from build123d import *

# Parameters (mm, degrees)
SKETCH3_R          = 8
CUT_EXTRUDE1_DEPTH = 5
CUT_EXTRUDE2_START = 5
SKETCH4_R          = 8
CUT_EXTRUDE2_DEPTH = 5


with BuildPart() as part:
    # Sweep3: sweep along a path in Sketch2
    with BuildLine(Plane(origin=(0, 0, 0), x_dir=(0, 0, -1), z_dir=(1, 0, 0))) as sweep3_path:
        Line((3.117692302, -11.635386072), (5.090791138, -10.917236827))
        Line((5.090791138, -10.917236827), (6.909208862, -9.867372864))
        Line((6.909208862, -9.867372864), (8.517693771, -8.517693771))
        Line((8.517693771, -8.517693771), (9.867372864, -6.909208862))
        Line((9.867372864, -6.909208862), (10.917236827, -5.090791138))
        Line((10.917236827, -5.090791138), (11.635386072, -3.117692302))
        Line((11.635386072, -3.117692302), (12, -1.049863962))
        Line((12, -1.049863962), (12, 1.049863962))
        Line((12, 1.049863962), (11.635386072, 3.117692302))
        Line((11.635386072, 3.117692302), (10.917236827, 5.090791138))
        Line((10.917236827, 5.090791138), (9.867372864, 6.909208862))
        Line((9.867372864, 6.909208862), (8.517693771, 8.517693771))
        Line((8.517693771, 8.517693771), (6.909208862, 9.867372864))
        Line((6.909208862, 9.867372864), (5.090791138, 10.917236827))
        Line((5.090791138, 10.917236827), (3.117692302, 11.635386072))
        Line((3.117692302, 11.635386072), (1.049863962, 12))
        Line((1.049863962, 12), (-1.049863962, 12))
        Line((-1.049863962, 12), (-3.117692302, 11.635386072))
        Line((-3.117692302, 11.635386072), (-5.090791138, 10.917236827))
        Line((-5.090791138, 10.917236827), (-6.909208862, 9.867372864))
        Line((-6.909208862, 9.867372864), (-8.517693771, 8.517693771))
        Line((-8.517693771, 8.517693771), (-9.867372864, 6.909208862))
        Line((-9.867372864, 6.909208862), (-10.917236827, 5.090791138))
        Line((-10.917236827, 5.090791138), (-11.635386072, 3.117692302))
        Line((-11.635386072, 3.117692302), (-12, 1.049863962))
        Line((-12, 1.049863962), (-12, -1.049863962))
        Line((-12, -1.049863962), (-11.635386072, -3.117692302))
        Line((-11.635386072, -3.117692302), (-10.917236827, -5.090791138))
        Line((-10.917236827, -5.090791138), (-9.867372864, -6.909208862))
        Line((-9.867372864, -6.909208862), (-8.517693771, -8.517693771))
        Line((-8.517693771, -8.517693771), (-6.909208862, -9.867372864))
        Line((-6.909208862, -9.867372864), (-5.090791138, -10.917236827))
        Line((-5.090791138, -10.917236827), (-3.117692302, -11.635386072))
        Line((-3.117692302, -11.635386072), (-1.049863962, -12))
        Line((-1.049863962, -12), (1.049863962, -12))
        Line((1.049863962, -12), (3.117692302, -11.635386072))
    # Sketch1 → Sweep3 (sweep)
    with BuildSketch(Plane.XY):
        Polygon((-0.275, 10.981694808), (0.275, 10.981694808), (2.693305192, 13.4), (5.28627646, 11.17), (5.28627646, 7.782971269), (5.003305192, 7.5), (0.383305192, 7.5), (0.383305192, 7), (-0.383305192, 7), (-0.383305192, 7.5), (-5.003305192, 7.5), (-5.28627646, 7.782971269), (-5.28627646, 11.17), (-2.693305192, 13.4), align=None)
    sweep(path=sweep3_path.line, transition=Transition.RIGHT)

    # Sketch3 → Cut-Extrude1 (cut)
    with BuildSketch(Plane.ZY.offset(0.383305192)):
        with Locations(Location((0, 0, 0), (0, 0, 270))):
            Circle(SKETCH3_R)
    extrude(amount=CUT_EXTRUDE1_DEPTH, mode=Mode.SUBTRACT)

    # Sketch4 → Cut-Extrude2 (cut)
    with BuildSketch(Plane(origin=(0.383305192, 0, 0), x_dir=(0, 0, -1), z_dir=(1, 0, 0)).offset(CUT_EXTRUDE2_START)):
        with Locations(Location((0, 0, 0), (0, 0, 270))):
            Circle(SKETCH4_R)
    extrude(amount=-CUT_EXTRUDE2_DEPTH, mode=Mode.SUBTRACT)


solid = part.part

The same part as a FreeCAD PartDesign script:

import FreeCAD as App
import Part
import Sketcher

V = App.Vector
Q = App.Units.Quantity

doc = App.newDocument("Part")
body = doc.addObject("PartDesign::Body", "Body")

sketch1 = body.newObject("Sketcher::SketchObject", "Sketch")
sketch1.AttachmentSupport = (doc.getObject("XY_Plane"), [""])
sketch1.MapMode = "FlatFace"
sketch1.addGeometry([
    Part.LineSegment(V(0.28, 10.98, 0), V(-0.28, 10.98, 0)),
    Part.LineSegment(V(-0.28, 10.98, 0), V(-2.69, 13.4, 0)),
    Part.LineSegment(V(-2.69, 13.4, 0), V(-5.29, 11.17, 0)),
    Part.LineSegment(V(-5.29, 11.17, 0), V(-5.29, 7.78, 0)),
    Part.LineSegment(V(-5.29, 7.78, 0), V(-5, 7.5, 0)),
    Part.LineSegment(V(-5, 7.5, 0), V(-0.38, 7.5, 0)),
    Part.LineSegment(V(-0.38, 7.5, 0), V(-0.38, 7, 0)),
    Part.LineSegment(V(-0.38, 7, 0), V(0.38, 7, 0)),
    Part.LineSegment(V(0.38, 7, 0), V(0.38, 7.5, 0)),
    Part.LineSegment(V(0.38, 7.5, 0), V(5, 7.5, 0)),
    Part.LineSegment(V(5, 7.5, 0), V(5.29, 7.78, 0)),
    Part.LineSegment(V(5.29, 7.78, 0), V(5.29, 11.17, 0)),
    Part.LineSegment(V(5.29, 11.17, 0), V(2.69, 13.4, 0)),
    Part.LineSegment(V(2.69, 13.4, 0), V(0.28, 10.98, 0)),
], False)
sketch1.addConstraint([
    Sketcher.Constraint("Coincident", 0, 2, 1, 1),
    Sketcher.Constraint("Coincident", 1, 2, 2, 1),
    Sketcher.Constraint("Coincident", 2, 2, 3, 1),
    Sketcher.Constraint("Coincident", 3, 2, 4, 1),
    Sketcher.Constraint("Coincident", 4, 2, 5, 1),
    Sketcher.Constraint("Coincident", 5, 2, 6, 1),
    Sketcher.Constraint("Coincident", 6, 2, 7, 1),
    Sketcher.Constraint("Coincident", 7, 2, 8, 1),
    Sketcher.Constraint("Coincident", 8, 2, 9, 1),
    Sketcher.Constraint("Coincident", 9, 2, 10, 1),
    Sketcher.Constraint("Coincident", 10, 2, 11, 1),
    Sketcher.Constraint("Coincident", 11, 2, 12, 1),
    Sketcher.Constraint("Coincident", 12, 2, 13, 1),
    Sketcher.Constraint("Coincident", 13, 2, 0, 1),
    Sketcher.Constraint("Horizontal", 0),
    Sketcher.Constraint("Vertical", 3),
    Sketcher.Constraint("Horizontal", 5),
    Sketcher.Constraint("Vertical", 6),
    Sketcher.Constraint("Horizontal", 7),
    Sketcher.Constraint("Vertical", 8),
    Sketcher.Constraint("Horizontal", 9),
    Sketcher.Constraint("Vertical", 11),
    Sketcher.Constraint("Symmetric", 5, 2, 8, 2, -2),
    Sketcher.Constraint("Symmetric", 3, 2, 10, 2, -2),
    Sketcher.Constraint("Symmetric", 1, 2, 12, 2, -2),
    Sketcher.Constraint("Parallel", 1, 4),
    Sketcher.Constraint("Perpendicular", 4, 10),
    Sketcher.Constraint("Parallel", 10, 13),
    Sketcher.Constraint("Horizontal", 2, 2, 11, 2),
    Sketcher.Constraint("Equal", 5, 9),
    Sketcher.Constraint("Equal", 1, 2),
    Sketcher.Constraint("DistanceY", 6, 2, 6, 1, 0.5),
    Sketcher.Constraint("DistanceY", -1, 1, 6, 2, 7.0),
    Sketcher.Constraint("DistanceX", 0, 2, 0, 1, 0.55),
    Sketcher.Constraint("DistanceX", 5, 1, 5, 2, 4.62),
    Sketcher.Constraint("DistanceY", -1, 1, 1, 2, 13.4),
    Sketcher.Constraint("Distance", 1, 3.42),
    Sketcher.Constraint("DistanceY", -1, 1, 2, 2, 11.17),
    Sketcher.Constraint("DistanceX", 4, 2, 1, 2, 2.31),
])

sketch2 = body.newObject("Sketcher::SketchObject", "Sketch001")
sketch2.AttachmentSupport = (doc.getObject("YZ_Plane"), [""])
sketch2.MapMode = "FlatFace"
sketch2.addGeometry([
    Part.LineSegment(V(-11.6, -3.1, 0), V(-10.9, -5.1, 0)),
    Part.LineSegment(V(-10.9, -5.1, 0), V(-9.9, -6.9, 0)),
    Part.LineSegment(V(-9.9, -6.9, 0), V(-8.5, -8.5, 0)),
    Part.LineSegment(V(-8.5, -8.5, 0), V(-6.9, -9.9, 0)),
    Part.LineSegment(V(-6.9, -9.9, 0), V(-5.1, -10.9, 0)),
    Part.LineSegment(V(-5.1, -10.9, 0), V(-3.1, -11.6, 0)),
    Part.LineSegment(V(-3.1, -11.6, 0), V(-1, -12, 0)),
    Part.LineSegment(V(-1, -12, 0), V(1, -12, 0)),
    Part.LineSegment(V(1, -12, 0), V(3.1, -11.6, 0)),
    Part.LineSegment(V(3.1, -11.6, 0), V(5.1, -10.9, 0)),
    Part.LineSegment(V(5.1, -10.9, 0), V(6.9, -9.9, 0)),
    Part.LineSegment(V(6.9, -9.9, 0), V(8.5, -8.5, 0)),
    Part.LineSegment(V(8.5, -8.5, 0), V(9.9, -6.9, 0)),
    Part.LineSegment(V(9.9, -6.9, 0), V(10.9, -5.1, 0)),
    Part.LineSegment(V(10.9, -5.1, 0), V(11.6, -3.1, 0)),
    Part.LineSegment(V(11.6, -3.1, 0), V(12, -1, 0)),
    Part.LineSegment(V(12, -1, 0), V(12, 1, 0)),
    Part.LineSegment(V(12, 1, 0), V(11.6, 3.1, 0)),
    Part.LineSegment(V(11.6, 3.1, 0), V(10.9, 5.1, 0)),
    Part.LineSegment(V(10.9, 5.1, 0), V(9.9, 6.9, 0)),
    Part.LineSegment(V(9.9, 6.9, 0), V(8.5, 8.5, 0)),
    Part.LineSegment(V(8.5, 8.5, 0), V(6.9, 9.9, 0)),
    Part.LineSegment(V(6.9, 9.9, 0), V(5.1, 10.9, 0)),
    Part.LineSegment(V(5.1, 10.9, 0), V(3.1, 11.6, 0)),
    Part.LineSegment(V(3.1, 11.6, 0), V(1, 12, 0)),
    Part.LineSegment(V(1, 12, 0), V(-1, 12, 0)),
    Part.LineSegment(V(-1, 12, 0), V(-3.1, 11.6, 0)),
    Part.LineSegment(V(-3.1, 11.6, 0), V(-5.1, 10.9, 0)),
    Part.LineSegment(V(-5.1, 10.9, 0), V(-6.9, 9.9, 0)),
    Part.LineSegment(V(-6.9, 9.9, 0), V(-8.5, 8.5, 0)),
    Part.LineSegment(V(-8.5, 8.5, 0), V(-9.9, 6.9, 0)),
    Part.LineSegment(V(-9.9, 6.9, 0), V(-10.9, 5.1, 0)),
    Part.LineSegment(V(-10.9, 5.1, 0), V(-11.6, 3.1, 0)),
    Part.LineSegment(V(-11.6, 3.1, 0), V(-12, 1, 0)),
    Part.LineSegment(V(-12, 1, 0), V(-12, -1, 0)),
    Part.LineSegment(V(-12, -1, 0), V(-11.6, -3.1, 0)),
], False)
sketch2.addConstraint([
    Sketcher.Constraint("Coincident", 0, 2, 1, 1),
    Sketcher.Constraint("Coincident", 1, 2, 2, 1),
    Sketcher.Constraint("Coincident", 2, 2, 3, 1),
    Sketcher.Constraint("Coincident", 3, 2, 4, 1),
    Sketcher.Constraint("Coincident", 4, 2, 5, 1),
    Sketcher.Constraint("Coincident", 5, 2, 6, 1),
    Sketcher.Constraint("Coincident", 6, 2, 7, 1),
    Sketcher.Constraint("Coincident", 7, 2, 8, 1),
    Sketcher.Constraint("Coincident", 8, 2, 9, 1),
    Sketcher.Constraint("Coincident", 9, 2, 10, 1),
    Sketcher.Constraint("Coincident", 10, 2, 11, 1),
    Sketcher.Constraint("Coincident", 11, 2, 12, 1),
    Sketcher.Constraint("Coincident", 12, 2, 13, 1),
    Sketcher.Constraint("Coincident", 13, 2, 14, 1),
    Sketcher.Constraint("Coincident", 14, 2, 15, 1),
    Sketcher.Constraint("Coincident", 15, 2, 16, 1),
    Sketcher.Constraint("Coincident", 16, 2, 17, 1),
    Sketcher.Constraint("Coincident", 17, 2, 18, 1),
    Sketcher.Constraint("Coincident", 18, 2, 19, 1),
    Sketcher.Constraint("Coincident", 19, 2, 20, 1),
    Sketcher.Constraint("Coincident", 20, 2, 21, 1),
    Sketcher.Constraint("Coincident", 21, 2, 22, 1),
    Sketcher.Constraint("Coincident", 22, 2, 23, 1),
    Sketcher.Constraint("Coincident", 23, 2, 24, 1),
    Sketcher.Constraint("Coincident", 24, 2, 25, 1),
    Sketcher.Constraint("Coincident", 25, 2, 26, 1),
    Sketcher.Constraint("Coincident", 26, 2, 27, 1),
    Sketcher.Constraint("Coincident", 27, 2, 28, 1),
    Sketcher.Constraint("Coincident", 28, 2, 29, 1),
    Sketcher.Constraint("Coincident", 29, 2, 30, 1),
    Sketcher.Constraint("Coincident", 30, 2, 31, 1),
    Sketcher.Constraint("Coincident", 31, 2, 32, 1),
    Sketcher.Constraint("Coincident", 32, 2, 33, 1),
    Sketcher.Constraint("Coincident", 33, 2, 34, 1),
    Sketcher.Constraint("Coincident", 34, 2, 35, 1),
    Sketcher.Constraint("Coincident", 35, 2, 0, 1),
    Sketcher.Constraint("Horizontal", 7),
    Sketcher.Constraint("Vertical", 16),
    Sketcher.Constraint("Horizontal", 25),
    Sketcher.Constraint("Vertical", 34),
    Sketcher.Constraint("Symmetric", 0, 2, 18, 2, -1, 1),
    Sketcher.Constraint("Symmetric", 1, 2, 19, 2, -1, 1),
    Sketcher.Constraint("Symmetric", 2, 2, 20, 2, -1, 1),
    Sketcher.Constraint("Symmetric", 3, 2, 21, 2, -1, 1),
    Sketcher.Constraint("Symmetric", 4, 2, 22, 2, -1, 1),
    Sketcher.Constraint("Symmetric", 5, 2, 23, 2, -1, 1),
    Sketcher.Constraint("Symmetric", 6, 2, 24, 2, -1, 1),
    Sketcher.Constraint("Symmetric", 8, 2, 26, 2, -1, 1),
    Sketcher.Constraint("Symmetric", 9, 2, 27, 2, -1, 1),
    Sketcher.Constraint("Symmetric", 10, 2, 28, 2, -1, 1),
    Sketcher.Constraint("Symmetric", 11, 2, 29, 2, -1, 1),
    Sketcher.Constraint("Symmetric", 12, 2, 30, 2, -1, 1),
    Sketcher.Constraint("Symmetric", 13, 2, 31, 2, -1, 1),
    Sketcher.Constraint("Symmetric", 14, 2, 32, 2, -1, 1),
    Sketcher.Constraint("Symmetric", 15, 2, 33, 2, -1, 1),
    Sketcher.Constraint("Symmetric", 17, 2, 35, 2, -1, 1),
    Sketcher.Constraint("Symmetric", 5, 2, 8, 2, -2),
    Sketcher.Constraint("Symmetric", 4, 2, 9, 2, -2),
    Sketcher.Constraint("Symmetric", 3, 2, 10, 2, -2),
    Sketcher.Constraint("Symmetric", 2, 2, 11, 2, -2),
    Sketcher.Constraint("Symmetric", 1, 2, 12, 2, -2),
    Sketcher.Constraint("Symmetric", 0, 2, 13, 2, -2),
    Sketcher.Constraint("Symmetric", 17, 2, 32, 2, -2),
    Sketcher.Constraint("Perpendicular", 0, 9),
    Sketcher.Constraint("Perpendicular", 1, 10),
    Sketcher.Constraint("Perpendicular", 2, 11),
    Sketcher.Constraint("Perpendicular", 6, 15),
    Sketcher.Constraint("Perpendicular", 8, 17),
    Sketcher.Constraint("Perpendicular", 17, 26),
    Sketcher.Constraint("Perpendicular", 26, 35),
    Sketcher.Constraint("Horizontal", 16, 2, 33, 2),
    Sketcher.Constraint("Equal", 25, 16),
    Sketcher.Constraint("Equal", 0, 1),
    Sketcher.Constraint("Equal", 1, 2),
    Sketcher.Constraint("Equal", 2, 3),
    Sketcher.Constraint("Equal", 3, 4),
    Sketcher.Constraint("Equal", 4, 5),
    Sketcher.Constraint("Equal", 5, 6),
    Sketcher.Constraint("Equal", 14, 15),
    Sketcher.Constraint("Angle", 0, Q("-70 deg")),
    Sketcher.Constraint("Angle", 1, Q("-60 deg")),
    Sketcher.Constraint("Angle", 2, Q("-50 deg")),
    Sketcher.Constraint("Angle", 6, Q("-10 deg")),
    Sketcher.Constraint("DistanceY", 6, 2, -1, 1, 12.0),
    Sketcher.Constraint("DistanceX", 2, 2, 5, 2, 5.400001),
])
doc.recompute()

additivepipe = body.newObject("PartDesign::AdditivePipe", "AdditivePipe")
additivepipe.Profile = sketch1
additivepipe.Spine = (sketch2, ["Edge1", "Edge2", "Edge3", "Edge4", "Edge5", "Edge6", "Edge7", "Edge8", "Edge9", "Edge10", "Edge11", "Edge12", "Edge13", "Edge14", "Edge15", "Edge16", "Edge17", "Edge18", "Edge19", "Edge20", "Edge21", "Edge22", "Edge23", "Edge24", "Edge25", "Edge26", "Edge27", "Edge28", "Edge29", "Edge30", "Edge31", "Edge32", "Edge33", "Edge34", "Edge35", "Edge36"])
additivepipe.Transition = "Right corner"

sketch3 = body.newObject("Sketcher::SketchObject", "Sketch002")
sketch3.AttachmentSupport = (doc.getObject("YZ_Plane"), [""])
sketch3.MapMode = "FlatFace"
sketch3.AttachmentOffset = App.Placement(V(0, 0, -0.383305), App.Rotation())
sketch3.addGeometry(Part.Circle(V(0, 0, 0), V(0, 0, 1), 8), False)
sketch3.addConstraint([
    Sketcher.Constraint("Coincident", 0, 3, -1, 1),
    Sketcher.Constraint("Diameter", 0, 16.0),
])
pocket1 = body.newObject("PartDesign::Pocket", "Pocket")
pocket1.Profile = sketch3
pocket1.Length = 5

sketch4 = body.newObject("Sketcher::SketchObject", "Sketch003")
sketch4.AttachmentSupport = (doc.getObject("YZ_Plane"), [""])
sketch4.MapMode = "FlatFace"
sketch4.AttachmentOffset = App.Placement(V(0, 0, 5.383305), App.Rotation())
sketch4.addGeometry(Part.Circle(V(0, 0, 0), V(0, 0, 1), 8), False)
sketch4.addConstraint([
    Sketcher.Constraint("Coincident", 0, 3, -1, 1),
    Sketcher.Constraint("Diameter", 0, 16.0),
])
pocket2 = body.newObject("PartDesign::Pocket", "Pocket001")
pocket2.Profile = sketch4
pocket2.Length = 5

doc.recompute()
